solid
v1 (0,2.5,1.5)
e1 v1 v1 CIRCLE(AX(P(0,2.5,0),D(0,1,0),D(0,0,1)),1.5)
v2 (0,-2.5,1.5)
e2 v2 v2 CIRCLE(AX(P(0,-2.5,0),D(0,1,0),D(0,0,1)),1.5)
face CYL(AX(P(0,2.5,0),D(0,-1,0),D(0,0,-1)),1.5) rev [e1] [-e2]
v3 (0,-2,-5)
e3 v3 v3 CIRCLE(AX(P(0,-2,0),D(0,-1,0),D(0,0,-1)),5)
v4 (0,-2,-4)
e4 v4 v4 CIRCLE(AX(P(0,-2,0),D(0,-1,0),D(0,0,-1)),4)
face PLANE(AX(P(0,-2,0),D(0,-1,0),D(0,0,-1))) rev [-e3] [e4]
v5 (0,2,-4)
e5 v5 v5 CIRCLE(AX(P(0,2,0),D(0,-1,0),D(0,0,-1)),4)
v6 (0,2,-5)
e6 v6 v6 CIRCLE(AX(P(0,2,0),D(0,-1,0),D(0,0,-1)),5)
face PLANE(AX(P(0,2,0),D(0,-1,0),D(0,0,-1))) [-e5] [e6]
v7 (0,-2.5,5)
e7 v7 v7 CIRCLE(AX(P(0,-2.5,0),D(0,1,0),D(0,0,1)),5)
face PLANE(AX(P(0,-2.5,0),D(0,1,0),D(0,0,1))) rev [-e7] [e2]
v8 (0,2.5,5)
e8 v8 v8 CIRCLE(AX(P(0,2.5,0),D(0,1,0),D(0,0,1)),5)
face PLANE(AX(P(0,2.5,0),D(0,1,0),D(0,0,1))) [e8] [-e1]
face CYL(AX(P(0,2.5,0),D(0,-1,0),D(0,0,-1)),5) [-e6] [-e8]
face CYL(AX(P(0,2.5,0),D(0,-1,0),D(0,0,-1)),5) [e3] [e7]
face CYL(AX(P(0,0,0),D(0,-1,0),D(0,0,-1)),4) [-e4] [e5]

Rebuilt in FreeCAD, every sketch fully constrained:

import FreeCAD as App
import Part
import Sketcher

V = App.Vector
Q = App.Units.Quantity

doc = App.newDocument("Part")
params = doc.addObject("Spreadsheet::Sheet", "Params")
for row, (alias, value) in enumerate([
    ("sketch1_diameter", "10 mm"),
    ("sketch1_diameter2", "3 mm"),
    ("pad1_length", "5 mm"),
    ("sketch2_width", "4 mm"),
    ("sketch2_height", "1 mm"),
    ("groove_angle", "360 deg"),
], start=1):
    params.set(f"A{row}", alias)
    params.set(f"B{row}", "=" + value)
    params.setAlias(f"B{row}", alias)

body = doc.addObject("PartDesign::Body", "Body")

# Sketch on XZ plane
sketch1 = doc.addObject("Sketcher::SketchObject", "Sketch")
body.addObject(sketch1)
sketch1.AttachmentSupport = (doc.XZ_Plane, [""])
sketch1.MapMode = "FlatFace"
sketch1.addGeometry(Part.Circle(V(0, 0, 0), V(0, 0, 1), 5), False)
sketch1.addGeometry(Part.Circle(V(0, 0, 0), V(0, 0, 1), 1.5), False)
sketch1.addConstraint(Sketcher.Constraint("Coincident", 0, 3, -1, 1))
sketch1.addConstraint(Sketcher.Constraint("Coincident", 1, 3, -1, 1))
sketch1.addConstraint(Sketcher.Constraint("Diameter", 0, Q("10 mm")))
sketch1.addConstraint(Sketcher.Constraint("Diameter", 1, Q("3 mm")))
sketch1.setExpression("Constraints[2]", "Params.sketch1_diameter")
sketch1.setExpression("Constraints[3]", "Params.sketch1_diameter2")
pad1 = doc.addObject("PartDesign::Pad", "Pad")
body.addObject(pad1)
pad1.Profile = sketch1
pad1.setExpression("Length", "Params.pad1_length")
pad1.Midplane = True

# Sketch on YZ plane
sketch2 = doc.addObject("Sketcher::SketchObject", "Sketch001")
body.addObject(sketch2)
sketch2.AttachmentSupport = (doc.YZ_Plane, [""])
sketch2.MapMode = "FlatFace"
sketch2.addGeometry(Part.LineSegment(V(2, 5, 0), V(-2, 5, 0)), False)
sketch2.addGeometry(Part.LineSegment(V(-2, 5, 0), V(-2, 4, 0)), False)
sketch2.addGeometry(Part.LineSegment(V(-2, 4, 0), V(2, 4, 0)), False)
sketch2.addGeometry(Part.LineSegment(V(2, 4, 0), V(2, 5, 0)), False)
sketch2.addConstraint(Sketcher.Constraint("Coincident", 0, 2, 1, 1))
sketch2.addConstraint(Sketcher.Constraint("Coincident", 1, 2, 2, 1))
sketch2.addConstraint(Sketcher.Constraint("Coincident", 2, 2, 3, 1))
sketch2.addConstraint(Sketcher.Constraint("Coincident", 3, 2, 0, 1))
sketch2.addConstraint(Sketcher.Constraint("Horizontal", 0))
sketch2.addConstraint(Sketcher.Constraint("Vertical", 1))
sketch2.addConstraint(Sketcher.Constraint("Horizontal", 2))
sketch2.addConstraint(Sketcher.Constraint("Vertical", 3))
sketch2.addConstraint(Sketcher.Constraint("DistanceX", 0, 2, 0, 1, Q("4 mm")))
sketch2.addConstraint(Sketcher.Constraint("DistanceY", 1, 2, 1, 1, Q("1 mm")))
sketch2.addConstraint(Sketcher.Constraint("DistanceX", 0, 2, -1, 1, Q("2 mm")))
sketch2.addConstraint(Sketcher.Constraint("DistanceY", -1, 1, 0, 2, Q("5 mm")))
sketch2.setExpression("Constraints[8]", "Params.sketch2_width")
sketch2.setExpression("Constraints[9]", "Params.sketch2_height")
groove = doc.addObject("PartDesign::Groove", "Groove")
body.addObject(groove)
groove.Profile = sketch2
groove.ReferenceAxis = (sketch2, ["H_Axis"])
groove.setExpression("Angle", "Params.groove_angle")

doc.recompute()
